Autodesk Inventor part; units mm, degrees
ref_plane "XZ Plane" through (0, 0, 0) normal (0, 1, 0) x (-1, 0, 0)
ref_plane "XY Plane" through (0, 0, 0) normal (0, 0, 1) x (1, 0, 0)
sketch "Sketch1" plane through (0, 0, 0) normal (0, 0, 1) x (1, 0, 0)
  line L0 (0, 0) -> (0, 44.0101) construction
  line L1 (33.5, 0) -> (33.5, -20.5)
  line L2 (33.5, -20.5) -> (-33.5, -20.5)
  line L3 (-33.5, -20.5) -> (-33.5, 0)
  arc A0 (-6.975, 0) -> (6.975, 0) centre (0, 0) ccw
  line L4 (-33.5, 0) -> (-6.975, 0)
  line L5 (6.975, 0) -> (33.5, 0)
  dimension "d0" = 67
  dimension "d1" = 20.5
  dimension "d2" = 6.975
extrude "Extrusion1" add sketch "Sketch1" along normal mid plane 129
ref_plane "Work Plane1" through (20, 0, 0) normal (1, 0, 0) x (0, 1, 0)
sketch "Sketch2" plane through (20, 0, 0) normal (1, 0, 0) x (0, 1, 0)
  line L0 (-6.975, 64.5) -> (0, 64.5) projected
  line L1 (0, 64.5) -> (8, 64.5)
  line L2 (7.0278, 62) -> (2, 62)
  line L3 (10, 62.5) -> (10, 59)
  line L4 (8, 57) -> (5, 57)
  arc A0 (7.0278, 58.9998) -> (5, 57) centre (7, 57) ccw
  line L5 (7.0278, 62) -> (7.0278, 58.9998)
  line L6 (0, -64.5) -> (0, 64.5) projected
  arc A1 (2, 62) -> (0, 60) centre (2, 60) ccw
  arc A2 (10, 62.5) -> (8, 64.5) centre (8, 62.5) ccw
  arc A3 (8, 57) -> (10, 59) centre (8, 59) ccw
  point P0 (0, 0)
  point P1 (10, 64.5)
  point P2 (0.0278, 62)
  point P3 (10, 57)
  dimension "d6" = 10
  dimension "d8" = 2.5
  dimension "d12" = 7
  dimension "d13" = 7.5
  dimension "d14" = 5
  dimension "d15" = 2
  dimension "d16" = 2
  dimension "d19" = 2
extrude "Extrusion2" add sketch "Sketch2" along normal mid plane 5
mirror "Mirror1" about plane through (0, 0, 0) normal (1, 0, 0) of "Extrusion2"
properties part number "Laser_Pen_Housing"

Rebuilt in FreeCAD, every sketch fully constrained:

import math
import FreeCAD as App
import Part
import Sketcher
from FreeCAD import Vector
Q = App.Units.Quantity

doc = App.newDocument("Part")
body = doc.addObject("PartDesign::Body", "Body")

sketch1 = body.newObject("Sketcher::SketchObject", "Sketch")
sketch1.AttachmentSupport = (doc.getObject("XY_Plane"), [""])
sketch1.MapMode = "FlatFace"
sketch1.addGeometry([
    Part.LineSegment(Vector(34, -20, 0), Vector(34, 0, 0)),
    Part.LineSegment(Vector(34, 0, 0), Vector(7, 0, 0)),
    Part.ArcOfCircle(Part.Circle(Vector(0, 0, 0), Vector(0, 0, 1), 7), math.radians(180), math.radians(360)),
    Part.LineSegment(Vector(-7, 0, 0), Vector(-34, 0, 0)),
    Part.LineSegment(Vector(-34, 0, 0), Vector(-34, -20, 0)),
    Part.LineSegment(Vector(-34, -20, 0), Vector(34, -20, 0)),
], False)
sketch1.addConstraint([
    Sketcher.Constraint("Coincident", 0, 2, 1, 1),
    Sketcher.Constraint("Coincident", 1, 2, 2, 2),
    Sketcher.Constraint("Coincident", 2, 1, 3, 1),
    Sketcher.Constraint("Coincident", 3, 2, 4, 1),
    Sketcher.Constraint("Coincident", 4, 2, 5, 1),
    Sketcher.Constraint("Coincident", 5, 2, 0, 1),
    Sketcher.Constraint("Vertical", 0),
    Sketcher.Constraint("Horizontal", 1),
    Sketcher.Constraint("Horizontal", 3),
    Sketcher.Constraint("Vertical", 4),
    Sketcher.Constraint("Horizontal", 5),
    Sketcher.Constraint("Coincident", 2, 3, -1, 1),
    Sketcher.Constraint("Symmetric", 0, 2, 3, 2, -1, 1),
    Sketcher.Constraint("PointOnObject", 0, 2, -1),
    Sketcher.Constraint("DistanceX", 5, 1, 5, 2, Q("67 mm")),
    Sketcher.Constraint("DistanceY", 0, 1, 0, 2, Q("20.5 mm")),
    Sketcher.Constraint("Radius", 2, Q("6.975 mm")),
])
pad1 = body.newObject("PartDesign::Pad", "Pad")
pad1.Profile = sketch1
pad1.Length = 129
pad1.Midplane = True

sketch2 = body.newObject("Sketcher::SketchObject", "Sketch001")
sketch2.AttachmentSupport = (doc.getObject("YZ_Plane"), [""])
sketch2.MapMode = "FlatFace"
sketch2.AttachmentOffset = App.Placement(Vector(0, 0, 20), App.Rotation())
sketch2.addGeometry([
    Part.LineSegment(Vector(8, 64.5, 0), Vector(0, 64.5, 0)),
    Part.LineSegment(Vector(0, 64.5, 0), Vector(0, 60, 0)),
    Part.ArcOfCircle(Part.Circle(Vector(2, 60, 0), Vector(0, 0, 1), 2), math.radians(90), math.radians(180)),
    Part.LineSegment(Vector(2, 62, 0), Vector(7.0278, 62, 0)),
    Part.LineSegment(Vector(7.0278, 62, 0), Vector(7.0278, 58.9998, 0)),
    Part.ArcOfCircle(Part.Circle(Vector(7, 57, 0), Vector(0, 0, 1), 1.999993), math.radians(89.20356), math.radians(180)),
    Part.LineSegment(Vector(5, 57, 0), Vector(8, 57, 0)),
    Part.ArcOfCircle(Part.Circle(Vector(8, 59, 0), Vector(0, 0, 1), 2), math.radians(-90), math.radians(0)),
    Part.LineSegment(Vector(10, 59, 0), Vector(10, 62.5, 0)),
    Part.ArcOfCircle(Part.Circle(Vector(8, 62.5, 0), Vector(0, 0, 1), 2), math.radians(0), math.radians(90)),
], False)
sketch2.addConstraint([
    Sketcher.Constraint("Coincident", 0, 2, 1, 1),
    Sketcher.Constraint("Coincident", 1, 2, 2, 2),
    Sketcher.Constraint("Coincident", 2, 1, 3, 1),
    Sketcher.Constraint("Coincident", 3, 2, 4, 1),
    Sketcher.Constraint("Coincident", 4, 2, 5, 1),
    Sketcher.Constraint("Coincident", 5, 2, 6, 1),
    Sketcher.Constraint("Coincident", 6, 2, 7, 1),
    Sketcher.Constraint("Coincident", 7, 2, 8, 1),
    Sketcher.Constraint("Coincident", 8, 2, 9, 1),
    Sketcher.Constraint("Coincident", 9, 2, 0, 1),
    Sketcher.Constraint("Horizontal", 0),
    Sketcher.Constraint("Vertical", 1),
    Sketcher.Constraint("Horizontal", 3),
    Sketcher.Constraint("Vertical", 4),
    Sketcher.Constraint("Horizontal", 6),
    Sketcher.Constraint("Vertical", 8),
    Sketcher.Constraint("PointOnObject", 0, 2, -2),
    Sketcher.Constraint("Radius", 2, Q("2 mm")),
    Sketcher.Constraint("Radius", 5, Q("2 mm")),
    Sketcher.Constraint("Radius", 7, Q("2 mm")),
    Sketcher.Constraint("Radius", 9, Q("2 mm")),
    Sketcher.Constraint("DistanceX", -1, 1, 5, 3, Q("7 mm")),
    Sketcher.Constraint("DistanceX", -1, 1, 2, 1, Q("2 mm")),
    Sketcher.Constraint("DistanceX", -1, 1, 7, 2, Q("10 mm")),
    Sketcher.Constraint("DistanceY", 5, 3, 7, 3, Q("2 mm")),
    Sketcher.Constraint("DistanceY", 1, 2, 2, 1, Q("2 mm")),
    Sketcher.Constraint("DistanceY", 5, 3, 3, 2, Q("5 mm")),
    Sketcher.Constraint("DistanceX", 6, 2, 7, 2, Q("2 mm")),
    Sketcher.Constraint("DistanceY", 6, 2, 7, 2, Q("2 mm")),
    Sketcher.Constraint("DistanceX", 9, 2, 8, 2, Q("2 mm")),
    Sketcher.Constraint("DistanceY", 8, 2, 9, 2, Q("2 mm")),
    Sketcher.Constraint("DistanceY", 2, 3, 9, 3, Q("2.5 mm")),
    Sketcher.Constraint("DistanceY", -1, 1, 2, 3, Q("60 mm")),
    Sketcher.Constraint("DistanceY", 5, 3, 4, 2, Q("1.9998 mm")),
])
pad2 = body.newObject("PartDesign::Pad", "Pad001")
pad2.Profile = sketch2
pad2.Length = 5
pad2.Midplane = True
doc.recompute()

mirrored = body.newObject("PartDesign::Mirrored", "Mirrored")
mirrored.Originals = [pad2]
mirrored.MirrorPlane = (doc.getObject("YZ_Plane"), [""])
body.Tip = mirrored

doc.recompute()
